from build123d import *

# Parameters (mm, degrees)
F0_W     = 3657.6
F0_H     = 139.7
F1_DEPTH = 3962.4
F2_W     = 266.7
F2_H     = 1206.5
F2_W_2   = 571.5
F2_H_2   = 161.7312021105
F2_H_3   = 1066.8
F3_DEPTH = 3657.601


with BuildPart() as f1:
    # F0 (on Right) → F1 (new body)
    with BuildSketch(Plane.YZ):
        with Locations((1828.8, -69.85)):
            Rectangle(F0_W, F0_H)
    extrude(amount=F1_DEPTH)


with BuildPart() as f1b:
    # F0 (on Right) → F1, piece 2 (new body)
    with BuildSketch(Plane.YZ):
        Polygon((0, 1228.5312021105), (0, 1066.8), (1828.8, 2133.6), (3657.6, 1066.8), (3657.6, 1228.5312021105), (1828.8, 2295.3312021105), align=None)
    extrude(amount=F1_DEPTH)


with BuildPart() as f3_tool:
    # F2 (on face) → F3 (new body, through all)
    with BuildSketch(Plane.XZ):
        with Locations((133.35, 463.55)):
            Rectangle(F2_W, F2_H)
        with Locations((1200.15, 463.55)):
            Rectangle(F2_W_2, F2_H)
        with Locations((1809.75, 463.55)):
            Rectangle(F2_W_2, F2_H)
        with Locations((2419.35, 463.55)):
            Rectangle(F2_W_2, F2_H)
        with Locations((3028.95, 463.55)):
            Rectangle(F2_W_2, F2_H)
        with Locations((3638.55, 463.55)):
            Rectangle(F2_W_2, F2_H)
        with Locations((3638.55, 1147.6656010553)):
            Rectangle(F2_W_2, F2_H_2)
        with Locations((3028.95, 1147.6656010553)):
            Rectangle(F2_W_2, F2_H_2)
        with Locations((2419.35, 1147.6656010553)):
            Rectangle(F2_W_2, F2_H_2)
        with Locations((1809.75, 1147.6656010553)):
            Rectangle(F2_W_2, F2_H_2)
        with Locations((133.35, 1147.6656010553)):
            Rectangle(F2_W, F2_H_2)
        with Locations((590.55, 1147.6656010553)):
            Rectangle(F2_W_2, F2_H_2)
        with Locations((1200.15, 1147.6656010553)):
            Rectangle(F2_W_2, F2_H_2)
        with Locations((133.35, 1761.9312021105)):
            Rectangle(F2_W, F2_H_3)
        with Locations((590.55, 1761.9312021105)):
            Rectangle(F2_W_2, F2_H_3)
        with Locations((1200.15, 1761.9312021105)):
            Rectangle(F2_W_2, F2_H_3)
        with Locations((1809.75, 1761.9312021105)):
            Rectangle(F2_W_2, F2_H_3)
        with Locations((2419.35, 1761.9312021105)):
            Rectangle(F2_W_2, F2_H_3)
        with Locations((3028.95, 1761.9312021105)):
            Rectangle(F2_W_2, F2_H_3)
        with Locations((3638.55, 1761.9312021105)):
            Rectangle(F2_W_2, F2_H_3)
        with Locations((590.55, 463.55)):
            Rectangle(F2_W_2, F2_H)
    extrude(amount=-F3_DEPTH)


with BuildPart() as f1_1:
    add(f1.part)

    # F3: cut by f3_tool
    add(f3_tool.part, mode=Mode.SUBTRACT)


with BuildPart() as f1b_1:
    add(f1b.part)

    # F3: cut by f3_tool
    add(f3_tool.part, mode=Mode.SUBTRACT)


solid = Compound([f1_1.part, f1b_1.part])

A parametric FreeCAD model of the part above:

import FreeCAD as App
import Part
import Sketcher

V = App.Vector
Q = App.Units.Quantity

doc = App.newDocument("Part")
body = doc.addObject("PartDesign::Body", "Body")

# Sketch on YZ plane
sketch1 = body.newObject("Sketcher::SketchObject", "Sketch")
sketch1.AttachmentSupport = (doc.getObject("YZ_Plane"), [""])
sketch1.MapMode = "FlatFace"
sketch1.addGeometry(Part.LineSegment(V(0, 0, 0), V(0, -140, 0)), False)
sketch1.addGeometry(Part.LineSegment(V(0, -140, 0), V(3658, -140, 0)), False)
sketch1.addGeometry(Part.LineSegment(V(3658, -140, 0), V(3658, 0, 0)), False)
sketch1.addGeometry(Part.LineSegment(V(3658, 0, 0), V(0, 0, 0)), False)
sketch1.addConstraint(Sketcher.Constraint("Coincident", 0, 2, 1, 1))
sketch1.addConstraint(Sketcher.Constraint("Coincident", 1, 2, 2, 1))
sketch1.addConstraint(Sketcher.Constraint("Coincident", 2, 2, 3, 1))
sketch1.addConstraint(Sketcher.Constraint("Coincident", 3, 2, 0, 1))
sketch1.addConstraint(Sketcher.Constraint("Vertical", 0))
sketch1.addConstraint(Sketcher.Constraint("Horizontal", 1))
sketch1.addConstraint(Sketcher.Constraint("Vertical", 2))
sketch1.addConstraint(Sketcher.Constraint("Horizontal", 3))
sketch1.addConstraint(Sketcher.Constraint("Coincident", 3, 2, -1, 1))
sketch1.addConstraint(Sketcher.Constraint("DistanceX", 1, 1, 1, 2, Q("144 in")))
sketch1.addConstraint(Sketcher.Constraint("DistanceY", 0, 2, 0, 1, Q("5.5 in")))
pad1 = body.newObject("PartDesign::Pad", "Pad")
pad1.Profile = sketch1
pad1.Length = Q("156 in")
body2 = doc.addObject("PartDesign::Body", "Body001")

# Sketch on YZ plane
sketch2 = body2.newObject("Sketcher::SketchObject", "Sketch001")
sketch2.AttachmentSupport = (doc.getObject("YZ_Plane001"), [""])
sketch2.MapMode = "FlatFace"
sketch2.addGeometry(Part.LineSegment(V(0, 1229, 0), V(0, 1067, 0)), False)
sketch2.addGeometry(Part.LineSegment(V(0, 1067, 0), V(1829, 2134, 0)), False)
sketch2.addGeometry(Part.LineSegment(V(1829, 2134, 0), V(3658, 1067, 0)), False)
sketch2.addGeometry(Part.LineSegment(V(3658, 1067, 0), V(3658, 1229, 0)), False)
sketch2.addGeometry(Part.LineSegment(V(3658, 1229, 0), V(1829, 2295, 0)), False)
sketch2.addGeometry(Part.LineSegment(V(1829, 2295, 0), V(0, 1229, 0)), False)
sketch2.addConstraint(Sketcher.Constraint("Coincident", 0, 2, 1, 1))
sketch2.addConstraint(Sketcher.Constraint("Coincident", 1, 2, 2, 1))
sketch2.addConstraint(Sketcher.Constraint("Coincident", 2, 2, 3, 1))
sketch2.addConstraint(Sketcher.Constraint("Coincident", 3, 2, 4, 1))
sketch2.addConstraint(Sketcher.Constraint("Coincident", 4, 2, 5, 1))
sketch2.addConstraint(Sketcher.Constraint("Coincident", 5, 2, 0, 1))
sketch2.addConstraint(Sketcher.Constraint("Vertical", 0))
sketch2.addConstraint(Sketcher.Constraint("Vertical", 3))
sketch2.addConstraint(Sketcher.Constraint("PointOnObject", 0, 2, -2))
sketch2.addConstraint(Sketcher.Constraint("Parallel", 2, 4))
sketch2.addConstraint(Sketcher.Constraint("Parallel", 1, 5))
sketch2.addConstraint(Sketcher.Constraint("Horizontal", 0, 2, 2, 2))
sketch2.addConstraint(Sketcher.Constraint("Horizontal", 3, 2, 5, 2))
sketch2.addConstraint(Sketcher.Constraint("Equal", 1, 2))
sketch2.addConstraint(Sketcher.Constraint("DistanceY", -1, 1, 0, 2, Q("42 in")))
sketch2.addConstraint(Sketcher.Constraint("DistanceX", -1, 1, 1, 2, Q("72 in")))
sketch2.addConstraint(Sketcher.Constraint("DistanceY", -1, 1, 1, 2, Q("84 in")))
sketch2.addConstraint(Sketcher.Constraint("DistanceY", 0, 2, 0, 1, Q("161.731202 mm")))
pad2 = body2.newObject("PartDesign::Pad", "Pad001")
pad2.Profile = sketch2
pad2.Length = Q("156 in")
body3 = doc.addObject("PartDesign::Body", "Body002")
body3.AllowCompound = True

# Sketch on XZ plane
sketch3 = body3.newObject("Sketcher::SketchObject", "Sketch002")
sketch3.AttachmentSupport = (doc.getObject("XZ_Plane002"), [""])
sketch3.MapMode = "FlatFace"
sketch3.addGeometry(Part.LineSegment(V(0, -140, 0), V(267, -140, 0)), False)
sketch3.addGeometry(Part.LineSegment(V(267, -140, 0), V(267, 2295, 0)), False)
sketch3.addGeometry(Part.LineSegment(V(267, 2295, 0), V(0, 2295, 0)), False)
sketch3.addGeometry(Part.LineSegment(V(0, 2295, 0), V(0, -140, 0)), False)
sketch3.addGeometry(Part.LineSegment(V(914, -140, 0), V(1486, -140, 0)), False)
sketch3.addGeometry(Part.LineSegment(V(1486, -140, 0), V(1486, 2295, 0)), False)
sketch3.addGeometry(Part.LineSegment(V(1486, 2295, 0), V(914, 2295, 0)), False)
sketch3.addGeometry(Part.LineSegment(V(914, 2295, 0), V(914, -140, 0)), False)
sketch3.addGeometry(Part.LineSegment(V(1524, -140, 0), V(2096, -140, 0)), False)
sketch3.addGeometry(Part.LineSegment(V(2096, -140, 0), V(2096, 2295, 0)), False)
sketch3.addGeometry(Part.LineSegment(V(2096, 2295, 0), V(1524, 2295, 0)), False)
sketch3.addGeometry(Part.LineSegment(V(1524, 2295, 0), V(1524, -140, 0)), False)
sketch3.addGeometry(Part.LineSegment(V(2134, -140, 0), V(2705, -140, 0)), False)
sketch3.addGeometry(Part.LineSegment(V(2705, -140, 0), V(2705, 2295, 0)), False)
sketch3.addGeometry(Part.LineSegment(V(2705, 2295, 0), V(2134, 2295, 0)), False)
sketch3.addGeometry(Part.LineSegment(V(2134, 2295, 0), V(2134, -140, 0)), False)
sketch3.addGeometry(Part.LineSegment(V(2743, -140, 0), V(3315, -140, 0)), False)
sketch3.addGeometry(Part.LineSegment(V(3315, -140, 0), V(3315, 2295, 0)), False)
sketch3.addGeometry(Part.LineSegment(V(3315, 2295, 0), V(2743, 2295, 0)), False)
sketch3.addGeometry(Part.LineSegment(V(2743, 2295, 0), V(2743, -140, 0)), False)
sketch3.addGeometry(Part.LineSegment(V(3353, -140, 0), V(3924, -140, 0)), False)
sketch3.addGeometry(Part.LineSegment(V(3924, -140, 0), V(3924, 2295, 0)), False)
sketch3.addGeometry(Part.LineSegment(V(3924, 2295, 0), V(3353, 2295, 0)), False)
sketch3.addGeometry(Part.LineSegment(V(3353, 2295, 0), V(3353, -140, 0)), False)
sketch3.addGeometry(Part.LineSegment(V(876, 2295, 0), V(305, 2295, 0)), False)
sketch3.addGeometry(Part.LineSegment(V(305, 2295, 0), V(305, -140, 0)), False)
sketch3.addGeometry(Part.LineSegment(V(305, -140, 0), V(876, -140, 0)), False)
sketch3.addGeometry(Part.LineSegment(V(876, -140, 0), V(876, 2295, 0)), False)
sketch3.addConstraint(Sketcher.Constraint("Coincident", 0, 2, 1, 1))
sketch3.addConstraint(Sketcher.Constraint("Coincident", 1, 2, 2, 1))
sketch3.addConstraint(Sketcher.Constraint("Coincident", 2, 2, 3, 1))
sketch3.addConstraint(Sketcher.Constraint("Coincident", 3, 2, 0, 1))
sketch3.addConstraint(Sketcher.Constraint("Coincident", 4, 2, 5, 1))
sketch3.addConstraint(Sketcher.Constraint("Coincident", 5, 2, 6, 1))
sketch3.addConstraint(Sketcher.Constraint("Coincident", 6, 2, 7, 1))
sketch3.addConstraint(Sketcher.Constraint("Coincident", 7, 2, 4, 1))
sketch3.addConstraint(Sketcher.Constraint("Coincident", 8, 2, 9, 1))
sketch3.addConstraint(Sketcher.Constraint("Coincident", 9, 2, 10, 1))
sketch3.addConstraint(Sketcher.Constraint("Coincident", 10, 2, 11, 1))
sketch3.addConstraint(Sketcher.Constraint("Coincident", 11, 2, 8, 1))
sketch3.addConstraint(Sketcher.Constraint("Coincident", 12, 2, 13, 1))
sketch3.addConstraint(Sketcher.Constraint("Coincident", 13, 2, 14, 1))
sketch3.addConstraint(Sketcher.Constraint("Coincident", 14, 2, 15, 1))
sketch3.addConstraint(Sketcher.Constraint("Coincident", 15, 2, 12, 1))
sketch3.addConstraint(Sketcher.Constraint("Coincident", 16, 2, 17, 1))
sketch3.addConstraint(Sketcher.Constraint("Coincident", 17, 2, 18, 1))
sketch3.addConstraint(Sketcher.Constraint("Coincident", 18, 2, 19, 1))
sketch3.addConstraint(Sketcher.Constraint("Coincident", 19, 2, 16, 1))
sketch3.addConstraint(Sketcher.Constraint("Coincident", 20, 2, 21, 1))
sketch3.addConstraint(Sketcher.Constraint("Coincident", 21, 2, 22, 1))
sketch3.addConstraint(Sketcher.Constraint("Coincident", 22, 2, 23, 1))
sketch3.addConstraint(Sketcher.Constraint("Coincident", 23, 2, 20, 1))
sketch3.addConstraint(Sketcher.Constraint("Coincident", 24, 2, 25, 1))
sketch3.addConstraint(Sketcher.Constraint("Coincident", 25, 2, 26, 1))
sketch3.addConstraint(Sketcher.Constraint("Coincident", 26, 2, 27, 1))
sketch3.addConstraint(Sketcher.Constraint("Coincident", 27, 2, 24, 1))
sketch3.addConstraint(Sketcher.Constraint("Horizontal", 0))
sketch3.addConstraint(Sketcher.Constraint("Vertical", 1))
sketch3.addConstraint(Sketcher.Constraint("Horizontal", 2))
sketch3.addConstraint(Sketcher.Constraint("Vertical", 3))
sketch3.addConstraint(Sketcher.Constraint("Horizontal", 4))
sketch3.addConstraint(Sketcher.Constraint("Vertical", 5))
sketch3.addConstraint(Sketcher.Constraint("Horizontal", 6))
sketch3.addConstraint(Sketcher.Constraint("Vertical", 7))
sketch3.addConstraint(Sketcher.Constraint("Horizontal", 8))
sketch3.addConstraint(Sketcher.Constraint("Vertical", 9))
sketch3.addConstraint(Sketcher.Constraint("Horizontal", 10))
sketch3.addConstraint(Sketcher.Constraint("Vertical", 11))
sketch3.addConstraint(Sketcher.Constraint("Horizontal", 12))
sketch3.addConstraint(Sketcher.Constraint("Vertical", 13))
sketch3.addConstraint(Sketcher.Constraint("Horizontal", 14))
sketch3.addConstraint(Sketcher.Constraint("Vertical", 15))
sketch3.addConstraint(Sketcher.Constraint("Horizontal", 16))
sketch3.addConstraint(Sketcher.Constraint("Vertical", 17))
sketch3.addConstraint(Sketcher.Constraint("Horizontal", 18))
sketch3.addConstraint(Sketcher.Constraint("Vertical", 19))
sketch3.addConstraint(Sketcher.Constraint("Horizontal", 20))
sketch3.addConstraint(Sketcher.Constraint("Vertical", 21))
sketch3.addConstraint(Sketcher.Constraint("Horizontal", 22))
sketch3.addConstraint(Sketcher.Constraint("Vertical", 23))
sketch3.addConstraint(Sketcher.Constraint("Horizontal", 24))
sketch3.addConstraint(Sketcher.Constraint("Vertical", 25))
sketch3.addConstraint(Sketcher.Constraint("Horizontal", 26))
sketch3.addConstraint(Sketcher.Constraint("Vertical", 27))
sketch3.addConstraint(Sketcher.Constraint("PointOnObject", 2, 2, -2))
sketch3.addConstraint(Sketcher.Constraint("Horizontal", 3, 2, 4, 2))
sketch3.addConstraint(Sketcher.Constraint("Horizontal", 2, 2, 5, 2))
sketch3.addConstraint(Sketcher.Constraint("Horizontal", 7, 2, 8, 2))
sketch3.addConstraint(Sketcher.Constraint("Horizontal", 6, 2, 9, 2))
sketch3.addConstraint(Sketcher.Constraint("Horizontal", 11, 2, 12, 2))
sketch3.addConstraint(Sketcher.Constraint("Horizontal", 10, 2, 13, 2))
sketch3.addConstraint(Sketcher.Constraint("Horizontal", 15, 2, 16, 2))
sketch3.addConstraint(Sketcher.Constraint("Horizontal", 14, 2, 17, 2))
sketch3.addConstraint(Sketcher.Constraint("Horizontal", 19, 2, 20, 2))
sketch3.addConstraint(Sketcher.Constraint("Horizontal", 18, 2, 21, 2))
sketch3.addConstraint(Sketcher.Constraint("Horizontal", 22, 2, 24, 2))
sketch3.addConstraint(Sketcher.Constraint("Horizontal", 23, 2, 25, 2))
sketch3.addConstraint(Sketcher.Constraint("Equal", 6, 8))
sketch3.addConstraint(Sketcher.Constraint("Equal", 10, 12))
sketch3.addConstraint(Sketcher.Constraint("Equal", 14, 16))
sketch3.addConstraint(Sketcher.Constraint("Equal", 18, 20))
sketch3.addConstraint(Sketcher.Constraint("Equal", 22, 24))
sketch3.addConstraint(Sketcher.Constraint("DistanceX", 0, 1, 0, 2, Q("10.5 in")))
sketch3.addConstraint(Sketcher.Constraint("DistanceX", 4, 1, 4, 2, Q("22.5 in")))
sketch3.addConstraint(Sketcher.Constraint("DistanceX", -1, 1, 6, 2, Q("36 in")))
sketch3.addConstraint(Sketcher.Constraint("DistanceX", -1, 1, 10, 2, Q("60 in")))
sketch3.addConstraint(Sketcher.Constraint("DistanceX", -1, 1, 14, 2, Q("84 in")))
sketch3.addConstraint(Sketcher.Constraint("DistanceX", -1, 1, 18, 2, Q("108 in")))
sketch3.addConstraint(Sketcher.Constraint("DistanceX", -1, 1, 22, 2, Q("132 in")))
sketch3.addConstraint(Sketcher.Constraint("DistanceX", -1, 1, 24, 2, Q("12 in")))
sketch3.addConstraint(Sketcher.Constraint("DistanceY", 0, 2, -1, 1, Q("5.5 in")))
sketch3.addConstraint(Sketcher.Constraint("DistanceY", 1, 1, 1, 2, Q("2435.031202 mm")))
pad3 = body3.newObject("PartDesign::Pad", "Pad002")
pad3.Profile = sketch3
pad3.Length = 3657.601
pad3.Reversed = True
body.AllowCompound = True
doc.recompute()

body4 = doc.addObject("PartDesign::Body", "Body003")
body4.BaseFeature = body3
boolean = body.newObject("PartDesign::Boolean", "Boolean")
boolean.Type = "Cut"
boolean.addObjects([body4])
doc.recompute()
body2.AllowCompound = True
doc.recompute()

boolean2 = body2.newObject("PartDesign::Boolean", "Boolean001")
boolean2.Type = "Cut"
boolean2.addObjects([body3])

doc.recompute()
